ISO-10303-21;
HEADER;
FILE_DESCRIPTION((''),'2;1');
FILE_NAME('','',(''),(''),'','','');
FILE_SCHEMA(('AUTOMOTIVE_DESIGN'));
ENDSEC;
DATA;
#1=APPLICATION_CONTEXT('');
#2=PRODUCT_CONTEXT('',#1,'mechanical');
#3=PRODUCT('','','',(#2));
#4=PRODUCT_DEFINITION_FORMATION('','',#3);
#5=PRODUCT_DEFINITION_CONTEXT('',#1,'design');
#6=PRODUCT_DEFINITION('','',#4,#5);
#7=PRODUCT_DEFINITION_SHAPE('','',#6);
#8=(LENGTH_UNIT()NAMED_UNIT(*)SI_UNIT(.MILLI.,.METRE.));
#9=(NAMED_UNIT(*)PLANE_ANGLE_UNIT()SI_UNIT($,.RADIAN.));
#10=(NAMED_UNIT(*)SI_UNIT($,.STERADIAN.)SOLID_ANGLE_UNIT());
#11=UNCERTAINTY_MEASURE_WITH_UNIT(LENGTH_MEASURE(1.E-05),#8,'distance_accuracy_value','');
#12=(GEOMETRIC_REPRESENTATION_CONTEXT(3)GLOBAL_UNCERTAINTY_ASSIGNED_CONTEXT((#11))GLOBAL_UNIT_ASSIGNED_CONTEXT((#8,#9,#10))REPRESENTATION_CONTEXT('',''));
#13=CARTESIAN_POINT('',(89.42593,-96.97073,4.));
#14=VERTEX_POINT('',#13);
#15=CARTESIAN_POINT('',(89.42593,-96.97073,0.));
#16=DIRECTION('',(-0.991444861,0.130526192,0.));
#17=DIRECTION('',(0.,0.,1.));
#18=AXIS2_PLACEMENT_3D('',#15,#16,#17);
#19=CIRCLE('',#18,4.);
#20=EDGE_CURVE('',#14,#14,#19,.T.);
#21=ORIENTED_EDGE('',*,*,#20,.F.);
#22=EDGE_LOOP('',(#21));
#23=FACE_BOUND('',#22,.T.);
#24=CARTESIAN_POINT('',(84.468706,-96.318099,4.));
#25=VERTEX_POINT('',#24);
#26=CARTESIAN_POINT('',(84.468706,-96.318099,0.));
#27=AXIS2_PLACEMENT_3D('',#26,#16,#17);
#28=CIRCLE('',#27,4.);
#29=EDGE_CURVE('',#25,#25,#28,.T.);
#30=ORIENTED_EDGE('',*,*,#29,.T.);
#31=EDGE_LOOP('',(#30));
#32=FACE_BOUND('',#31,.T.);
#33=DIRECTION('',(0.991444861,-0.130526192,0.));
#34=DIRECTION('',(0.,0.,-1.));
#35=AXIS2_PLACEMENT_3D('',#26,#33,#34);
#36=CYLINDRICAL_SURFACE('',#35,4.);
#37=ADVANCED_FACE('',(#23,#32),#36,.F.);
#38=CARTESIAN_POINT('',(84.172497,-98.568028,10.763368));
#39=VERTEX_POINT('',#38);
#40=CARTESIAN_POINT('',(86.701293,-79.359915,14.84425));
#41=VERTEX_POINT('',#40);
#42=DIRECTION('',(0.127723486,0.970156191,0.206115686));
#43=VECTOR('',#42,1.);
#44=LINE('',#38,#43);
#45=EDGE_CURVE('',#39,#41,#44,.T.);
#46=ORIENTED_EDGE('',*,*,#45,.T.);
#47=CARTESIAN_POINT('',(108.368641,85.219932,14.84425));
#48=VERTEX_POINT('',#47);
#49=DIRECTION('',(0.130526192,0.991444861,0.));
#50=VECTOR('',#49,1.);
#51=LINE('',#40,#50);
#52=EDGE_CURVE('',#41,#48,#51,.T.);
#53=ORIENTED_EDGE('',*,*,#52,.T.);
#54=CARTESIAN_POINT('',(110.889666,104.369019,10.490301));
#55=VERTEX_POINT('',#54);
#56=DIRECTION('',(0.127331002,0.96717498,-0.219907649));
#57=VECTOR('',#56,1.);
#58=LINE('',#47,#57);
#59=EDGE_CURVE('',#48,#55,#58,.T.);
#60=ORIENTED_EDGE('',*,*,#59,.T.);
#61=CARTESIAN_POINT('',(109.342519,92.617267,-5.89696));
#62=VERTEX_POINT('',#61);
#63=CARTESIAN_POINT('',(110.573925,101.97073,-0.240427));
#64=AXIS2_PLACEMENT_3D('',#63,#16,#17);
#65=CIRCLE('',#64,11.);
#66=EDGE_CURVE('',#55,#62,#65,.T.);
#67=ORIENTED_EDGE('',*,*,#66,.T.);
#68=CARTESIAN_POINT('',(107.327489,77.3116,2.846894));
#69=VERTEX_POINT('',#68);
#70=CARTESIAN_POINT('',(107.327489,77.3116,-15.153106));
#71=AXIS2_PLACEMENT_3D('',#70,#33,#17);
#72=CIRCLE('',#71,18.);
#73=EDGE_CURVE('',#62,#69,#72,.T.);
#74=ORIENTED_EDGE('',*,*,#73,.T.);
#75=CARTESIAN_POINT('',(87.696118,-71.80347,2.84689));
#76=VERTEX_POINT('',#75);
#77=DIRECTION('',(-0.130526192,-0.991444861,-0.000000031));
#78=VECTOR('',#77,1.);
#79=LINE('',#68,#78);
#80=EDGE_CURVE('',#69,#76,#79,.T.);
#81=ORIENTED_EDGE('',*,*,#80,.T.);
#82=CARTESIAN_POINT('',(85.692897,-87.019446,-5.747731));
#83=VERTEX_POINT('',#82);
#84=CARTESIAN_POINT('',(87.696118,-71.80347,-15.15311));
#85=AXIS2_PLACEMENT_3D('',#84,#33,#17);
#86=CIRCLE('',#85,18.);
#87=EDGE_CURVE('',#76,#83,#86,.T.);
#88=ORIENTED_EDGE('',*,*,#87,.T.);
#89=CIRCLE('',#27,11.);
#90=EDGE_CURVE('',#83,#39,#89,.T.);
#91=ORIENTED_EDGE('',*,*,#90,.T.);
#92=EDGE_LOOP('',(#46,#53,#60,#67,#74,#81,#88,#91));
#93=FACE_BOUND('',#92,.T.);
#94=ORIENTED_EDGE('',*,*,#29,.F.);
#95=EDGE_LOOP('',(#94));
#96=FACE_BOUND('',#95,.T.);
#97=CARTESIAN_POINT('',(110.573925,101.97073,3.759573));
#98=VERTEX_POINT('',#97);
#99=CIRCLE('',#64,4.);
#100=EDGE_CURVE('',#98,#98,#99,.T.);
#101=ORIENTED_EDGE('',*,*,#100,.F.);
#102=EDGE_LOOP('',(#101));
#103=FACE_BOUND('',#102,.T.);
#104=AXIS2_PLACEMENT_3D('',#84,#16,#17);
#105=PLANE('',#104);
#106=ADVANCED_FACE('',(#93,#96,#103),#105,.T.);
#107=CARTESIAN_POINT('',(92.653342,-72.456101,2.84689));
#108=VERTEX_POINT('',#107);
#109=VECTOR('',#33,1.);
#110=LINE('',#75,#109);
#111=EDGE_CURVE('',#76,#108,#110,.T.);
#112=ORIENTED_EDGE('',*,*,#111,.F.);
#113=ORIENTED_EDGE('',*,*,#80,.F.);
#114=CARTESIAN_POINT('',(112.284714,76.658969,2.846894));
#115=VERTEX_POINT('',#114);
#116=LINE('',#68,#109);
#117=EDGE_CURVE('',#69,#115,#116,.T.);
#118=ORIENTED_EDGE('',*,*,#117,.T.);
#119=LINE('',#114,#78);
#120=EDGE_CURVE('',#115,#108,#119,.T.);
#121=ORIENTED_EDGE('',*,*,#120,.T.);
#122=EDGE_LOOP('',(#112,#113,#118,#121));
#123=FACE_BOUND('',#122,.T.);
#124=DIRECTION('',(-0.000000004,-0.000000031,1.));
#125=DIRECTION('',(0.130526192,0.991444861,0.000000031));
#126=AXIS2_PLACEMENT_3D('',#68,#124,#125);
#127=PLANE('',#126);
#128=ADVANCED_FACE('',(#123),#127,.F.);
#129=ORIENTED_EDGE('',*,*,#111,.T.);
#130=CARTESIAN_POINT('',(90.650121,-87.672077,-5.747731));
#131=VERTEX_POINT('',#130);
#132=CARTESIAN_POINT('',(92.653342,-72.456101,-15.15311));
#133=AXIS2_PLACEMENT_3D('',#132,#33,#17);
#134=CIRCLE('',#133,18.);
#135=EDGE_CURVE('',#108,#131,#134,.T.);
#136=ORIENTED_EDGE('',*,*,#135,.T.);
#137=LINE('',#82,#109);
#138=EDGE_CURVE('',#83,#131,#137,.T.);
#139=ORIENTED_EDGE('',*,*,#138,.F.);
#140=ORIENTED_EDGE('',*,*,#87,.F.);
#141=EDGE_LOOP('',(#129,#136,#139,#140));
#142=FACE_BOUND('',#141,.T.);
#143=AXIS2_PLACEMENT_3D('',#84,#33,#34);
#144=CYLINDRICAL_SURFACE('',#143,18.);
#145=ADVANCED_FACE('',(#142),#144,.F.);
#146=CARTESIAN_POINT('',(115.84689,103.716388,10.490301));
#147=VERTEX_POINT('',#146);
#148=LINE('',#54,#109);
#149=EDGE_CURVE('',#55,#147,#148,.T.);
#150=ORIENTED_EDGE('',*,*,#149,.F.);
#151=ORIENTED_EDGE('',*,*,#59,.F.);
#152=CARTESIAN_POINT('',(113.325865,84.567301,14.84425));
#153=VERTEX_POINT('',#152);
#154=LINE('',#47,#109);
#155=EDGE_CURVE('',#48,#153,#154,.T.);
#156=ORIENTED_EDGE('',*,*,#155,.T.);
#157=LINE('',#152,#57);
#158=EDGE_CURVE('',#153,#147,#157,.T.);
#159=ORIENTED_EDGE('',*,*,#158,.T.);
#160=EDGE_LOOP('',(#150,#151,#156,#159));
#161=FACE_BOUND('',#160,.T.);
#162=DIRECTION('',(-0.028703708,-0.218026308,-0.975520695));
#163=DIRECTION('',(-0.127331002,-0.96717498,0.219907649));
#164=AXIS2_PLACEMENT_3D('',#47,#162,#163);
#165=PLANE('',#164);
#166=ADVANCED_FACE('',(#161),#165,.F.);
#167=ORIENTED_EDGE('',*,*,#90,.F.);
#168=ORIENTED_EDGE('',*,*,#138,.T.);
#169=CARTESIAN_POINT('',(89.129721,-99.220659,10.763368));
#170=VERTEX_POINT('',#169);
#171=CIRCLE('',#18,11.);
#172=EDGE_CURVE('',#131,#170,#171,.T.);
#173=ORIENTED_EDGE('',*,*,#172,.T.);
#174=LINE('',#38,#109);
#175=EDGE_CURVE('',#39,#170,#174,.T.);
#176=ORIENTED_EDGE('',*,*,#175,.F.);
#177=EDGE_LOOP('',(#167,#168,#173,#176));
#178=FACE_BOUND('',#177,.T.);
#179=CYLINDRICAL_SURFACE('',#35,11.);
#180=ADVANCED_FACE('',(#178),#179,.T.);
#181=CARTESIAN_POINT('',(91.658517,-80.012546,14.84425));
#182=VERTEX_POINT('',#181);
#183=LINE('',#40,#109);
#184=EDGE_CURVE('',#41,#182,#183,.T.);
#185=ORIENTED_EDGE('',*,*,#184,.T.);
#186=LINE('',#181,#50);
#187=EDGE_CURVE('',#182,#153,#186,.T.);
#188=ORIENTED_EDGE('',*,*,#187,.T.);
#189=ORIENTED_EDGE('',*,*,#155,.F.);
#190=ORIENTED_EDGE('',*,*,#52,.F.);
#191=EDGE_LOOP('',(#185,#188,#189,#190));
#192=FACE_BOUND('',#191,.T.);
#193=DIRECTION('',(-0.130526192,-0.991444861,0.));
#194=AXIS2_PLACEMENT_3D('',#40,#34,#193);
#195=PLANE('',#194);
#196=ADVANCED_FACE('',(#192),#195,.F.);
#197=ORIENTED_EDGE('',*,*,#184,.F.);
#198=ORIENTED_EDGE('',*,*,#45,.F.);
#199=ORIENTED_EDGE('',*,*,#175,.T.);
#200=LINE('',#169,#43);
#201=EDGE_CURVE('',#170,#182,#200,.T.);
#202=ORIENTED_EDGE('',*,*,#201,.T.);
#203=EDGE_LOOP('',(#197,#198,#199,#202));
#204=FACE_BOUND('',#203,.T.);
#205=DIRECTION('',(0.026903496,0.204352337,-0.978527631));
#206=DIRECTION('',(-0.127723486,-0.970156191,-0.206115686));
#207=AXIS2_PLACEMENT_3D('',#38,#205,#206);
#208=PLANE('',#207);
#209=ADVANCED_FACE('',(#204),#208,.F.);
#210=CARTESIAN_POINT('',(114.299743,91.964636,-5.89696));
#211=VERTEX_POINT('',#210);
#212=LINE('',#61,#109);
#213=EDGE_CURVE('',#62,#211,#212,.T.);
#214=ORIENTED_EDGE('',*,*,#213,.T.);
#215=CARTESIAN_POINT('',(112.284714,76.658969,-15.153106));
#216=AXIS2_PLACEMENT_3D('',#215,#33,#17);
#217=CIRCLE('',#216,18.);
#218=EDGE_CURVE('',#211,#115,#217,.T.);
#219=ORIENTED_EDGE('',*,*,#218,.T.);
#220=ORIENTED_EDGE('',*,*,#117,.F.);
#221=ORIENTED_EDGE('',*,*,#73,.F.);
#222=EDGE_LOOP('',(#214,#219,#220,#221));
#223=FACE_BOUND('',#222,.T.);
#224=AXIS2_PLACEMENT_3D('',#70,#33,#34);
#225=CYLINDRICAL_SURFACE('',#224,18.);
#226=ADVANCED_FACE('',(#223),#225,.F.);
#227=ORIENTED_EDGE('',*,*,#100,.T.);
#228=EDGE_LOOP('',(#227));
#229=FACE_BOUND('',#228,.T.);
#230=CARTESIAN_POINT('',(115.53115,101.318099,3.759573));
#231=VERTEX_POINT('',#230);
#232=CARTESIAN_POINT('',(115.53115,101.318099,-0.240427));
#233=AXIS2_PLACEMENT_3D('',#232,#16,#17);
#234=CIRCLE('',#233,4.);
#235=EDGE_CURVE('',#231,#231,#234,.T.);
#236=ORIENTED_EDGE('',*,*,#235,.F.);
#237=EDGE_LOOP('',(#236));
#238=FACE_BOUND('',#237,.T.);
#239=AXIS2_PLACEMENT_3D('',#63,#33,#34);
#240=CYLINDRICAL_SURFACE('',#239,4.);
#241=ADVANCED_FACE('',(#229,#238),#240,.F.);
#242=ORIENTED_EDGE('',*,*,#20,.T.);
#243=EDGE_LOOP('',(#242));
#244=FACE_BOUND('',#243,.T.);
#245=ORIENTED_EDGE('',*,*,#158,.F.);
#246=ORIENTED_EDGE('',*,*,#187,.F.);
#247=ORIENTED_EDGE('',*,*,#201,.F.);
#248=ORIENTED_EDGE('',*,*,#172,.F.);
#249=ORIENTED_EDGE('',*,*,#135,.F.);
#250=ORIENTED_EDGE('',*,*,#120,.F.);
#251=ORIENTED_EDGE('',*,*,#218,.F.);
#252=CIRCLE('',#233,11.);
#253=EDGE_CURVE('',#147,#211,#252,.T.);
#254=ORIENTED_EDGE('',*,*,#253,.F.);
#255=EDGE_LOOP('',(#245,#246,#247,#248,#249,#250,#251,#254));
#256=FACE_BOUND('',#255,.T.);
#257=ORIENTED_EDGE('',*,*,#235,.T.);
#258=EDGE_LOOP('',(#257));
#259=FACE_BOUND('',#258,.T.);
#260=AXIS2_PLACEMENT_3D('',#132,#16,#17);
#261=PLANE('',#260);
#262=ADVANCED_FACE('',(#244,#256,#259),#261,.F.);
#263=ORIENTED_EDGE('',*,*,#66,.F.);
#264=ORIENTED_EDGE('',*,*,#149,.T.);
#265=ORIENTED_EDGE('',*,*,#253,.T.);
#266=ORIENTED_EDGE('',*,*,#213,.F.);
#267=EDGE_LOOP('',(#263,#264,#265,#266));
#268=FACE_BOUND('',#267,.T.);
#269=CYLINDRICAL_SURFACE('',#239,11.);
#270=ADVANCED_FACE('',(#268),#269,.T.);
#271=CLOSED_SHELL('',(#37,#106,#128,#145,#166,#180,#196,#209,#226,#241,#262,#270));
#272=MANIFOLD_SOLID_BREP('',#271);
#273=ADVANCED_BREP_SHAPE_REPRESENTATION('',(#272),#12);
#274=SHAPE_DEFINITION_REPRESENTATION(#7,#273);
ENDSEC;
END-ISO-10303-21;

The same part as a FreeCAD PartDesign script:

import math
import FreeCAD as App
import Part
import Sketcher
from FreeCAD import Vector
Q = App.Units.Quantity

doc = App.newDocument("Part")
body = doc.addObject("PartDesign::Body", "Body")

# Sketch on XZ plane
sketch1 = body.newObject("Sketcher::SketchObject", "Sketch")
sketch1.AttachmentSupport = (doc.getObject("XZ_Plane"), [""])
sketch1.MapMode = "FlatFace"
sketch1.addGeometry(Part.LineSegment(Vector(17.1, 14.8, 0), Vector(183.1, 14.8, 0)), False)
sketch1.addGeometry(Part.LineSegment(Vector(183.1, 14.8, 0), Vector(202.4, 10.5, 0)), False)
sketch1.addGeometry(Part.ArcOfCircle(Part.Circle(Vector(200, -0.2, 0), Vector(0, 0, 1), 11), math.radians(-149), math.radians(77)), False)
sketch1.addGeometry(Part.ArcOfCircle(Part.Circle(Vector(175.1, -15.2, 0), Vector(0, 0, 1), 18), math.radians(31), math.radians(90)), False)
sketch1.addGeometry(Part.LineSegment(Vector(175.1, 2.8, 0), Vector(24.7, 2.8, 0)), False)
sketch1.addGeometry(Part.ArcOfCircle(Part.Circle(Vector(24.7, -15.2, 0), Vector(0, 0, 1), 18), math.radians(90), math.radians(148)), False)
sketch1.addGeometry(Part.ArcOfCircle(Part.Circle(Vector(0, 0, 0), Vector(0, 0, 1), 11), math.radians(102), math.radians(328)), False)
sketch1.addGeometry(Part.LineSegment(Vector(-2.3, 10.8, 0), Vector(17.1, 14.8, 0)), False)
sketch1.addGeometry(Part.Circle(Vector(0, 0, 0), Vector(0, 0, 1), 4), False)
sketch1.addGeometry(Part.Circle(Vector(200, -0.2, 0), Vector(0, 0, 1), 4), False)
sketch1.addConstraint(Sketcher.Constraint("Coincident", 0, 2, 1, 1))
sketch1.addConstraint(Sketcher.Constraint("Tangent", 1, 2, 2, 2))
sketch1.addConstraint(Sketcher.Constraint("Tangent", 2, 1, 3, 1))
sketch1.addConstraint(Sketcher.Constraint("Tangent", 3, 2, 4, 1))
sketch1.addConstraint(Sketcher.Constraint("Tangent", 4, 2, 5, 1))
sketch1.addConstraint(Sketcher.Constraint("Tangent", 5, 2, 6, 2))
sketch1.addConstraint(Sketcher.Constraint("Coincident", 6, 1, 7, 1))
sketch1.addConstraint(Sketcher.Constraint("Coincident", 7, 2, 0, 1))
sketch1.addConstraint(Sketcher.Constraint("Horizontal", 0))
sketch1.addConstraint(Sketcher.Constraint("Coincident", 6, 3, -1, 1))
sketch1.addConstraint(Sketcher.Constraint("Coincident", 8, 3, -1, 1))
sketch1.addConstraint(Sketcher.Constraint("Coincident", 9, 3, 2, 3))
sketch1.addConstraint(Sketcher.Constraint("Equal", 3, 5))
sketch1.addConstraint(Sketcher.Constraint("Equal", 2, 6))
sketch1.addConstraint(Sketcher.Constraint("Equal", 8, 9))
sketch1.addConstraint(Sketcher.Constraint("Vertical", 5, 3, 4, 2))
sketch1.addConstraint(Sketcher.Constraint("Equal", 1, 7))
sketch1.addConstraint(Sketcher.Constraint("Diameter", 8, Q("8 mm")))
sketch1.addConstraint(Sketcher.Constraint("Radius", 2, Q("11 mm")))
sketch1.addConstraint(Sketcher.Constraint("Radius", 3, Q("18 mm")))
sketch1.addConstraint(Sketcher.Constraint("DistanceX", 0, 1, 0, 2, Q("166 mm")))
sketch1.addConstraint(Sketcher.Constraint("DistanceY", -1, 1, 1, 2, Q("10.490301 mm")))
sketch1.addConstraint(Sketcher.Constraint("DistanceY", 5, 2, 6, 1, Q("16.511099 mm")))
sketch1.addConstraint(Sketcher.Constraint("Distance", 1, Q("19.79899 mm")))
sketch1.addConstraint(Sketcher.Constraint("Distance", 4, Q("150.401778 mm")))
sketch1.addConstraint(Sketcher.Constraint("DistanceY", 5, 3, -1, 1, Q("15.15311 mm")))
pad1 = body.newObject("PartDesign::Pad", "Pad")
pad1.Profile = sketch1
pad1.Length = 5
pad1.Reversed = True
body2 = doc.addObject("PartDesign::Body", "Body001")
doc.recompute()

body.Placement = App.Placement(Vector(89.42593, -96.97073, 0), App.Rotation(Vector(0, 0, 1), 82.5))
boolean = body2.newObject("PartDesign::Boolean", "Boolean")
boolean.Type = "Fuse"
boolean.addObjects([body])

doc.recompute()
